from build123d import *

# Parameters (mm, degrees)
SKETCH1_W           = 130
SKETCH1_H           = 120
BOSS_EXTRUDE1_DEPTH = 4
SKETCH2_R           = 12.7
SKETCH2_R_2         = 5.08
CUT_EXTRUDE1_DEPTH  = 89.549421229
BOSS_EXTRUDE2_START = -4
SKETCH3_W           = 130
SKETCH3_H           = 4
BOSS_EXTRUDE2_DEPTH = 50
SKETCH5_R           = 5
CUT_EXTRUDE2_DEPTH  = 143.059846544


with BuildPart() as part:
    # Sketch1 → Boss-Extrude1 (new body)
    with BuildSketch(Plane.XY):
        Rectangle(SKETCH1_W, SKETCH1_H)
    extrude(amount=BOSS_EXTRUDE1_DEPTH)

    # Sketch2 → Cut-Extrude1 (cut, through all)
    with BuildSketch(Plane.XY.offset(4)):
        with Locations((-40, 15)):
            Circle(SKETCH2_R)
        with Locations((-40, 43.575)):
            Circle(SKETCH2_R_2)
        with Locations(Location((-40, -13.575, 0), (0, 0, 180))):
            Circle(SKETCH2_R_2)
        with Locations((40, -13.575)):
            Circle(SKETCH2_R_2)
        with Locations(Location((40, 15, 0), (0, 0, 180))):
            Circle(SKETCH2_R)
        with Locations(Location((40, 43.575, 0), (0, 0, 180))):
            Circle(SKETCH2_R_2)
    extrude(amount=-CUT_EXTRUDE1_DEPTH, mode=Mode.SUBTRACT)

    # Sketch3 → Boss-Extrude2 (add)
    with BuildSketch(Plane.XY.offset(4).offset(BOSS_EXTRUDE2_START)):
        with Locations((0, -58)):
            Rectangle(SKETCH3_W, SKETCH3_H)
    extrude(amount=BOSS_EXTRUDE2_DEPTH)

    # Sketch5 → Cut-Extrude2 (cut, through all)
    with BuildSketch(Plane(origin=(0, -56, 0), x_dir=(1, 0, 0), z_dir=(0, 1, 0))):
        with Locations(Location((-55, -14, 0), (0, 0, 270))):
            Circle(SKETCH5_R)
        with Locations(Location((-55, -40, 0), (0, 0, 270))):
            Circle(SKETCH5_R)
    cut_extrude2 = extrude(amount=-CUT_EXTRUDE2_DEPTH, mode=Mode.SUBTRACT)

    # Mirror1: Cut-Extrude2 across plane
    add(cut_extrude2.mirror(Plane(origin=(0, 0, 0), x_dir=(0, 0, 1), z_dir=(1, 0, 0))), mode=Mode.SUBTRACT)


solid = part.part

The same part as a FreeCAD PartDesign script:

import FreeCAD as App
import Part
import Sketcher

V = App.Vector
Q = App.Units.Quantity


def add_polygon(sketch, points):
    """Adds a closed chain of lines whose ends are joined by coincident constraints."""
    first, n = sketch.GeometryCount, len(points)
    for a, b in zip(points, points[1:] + points[:1]):
        sketch.addGeometry(Part.LineSegment(App.Vector(*a, 0), App.Vector(*b, 0)), False)
    for i in range(n):
        sketch.addConstraint(Sketcher.Constraint("Coincident", first + i, 2, first + (i + 1) % n, 1))

doc = App.newDocument("Part")
body = doc.addObject("PartDesign::Body", "Body")

sketch1 = doc.addObject("Sketcher::SketchObject", "Sketch")
body.addObject(sketch1)
sketch1.AttachmentSupport = (doc.XY_Plane, [""])
sketch1.MapMode = "FlatFace"
add_polygon(sketch1, [(-65, 60), (-65, -60), (65, -60), (65, 60)])
sketch1.addConstraint([
    Sketcher.Constraint("Vertical", 0),
    Sketcher.Constraint("Horizontal", 1),
    Sketcher.Constraint("Vertical", 2),
    Sketcher.Constraint("Horizontal", 3),
    Sketcher.Constraint("Symmetric", 0, 2, 2, 2, -1, 1),
    Sketcher.Constraint("DistanceX", 1, 1, 1, 2, Q("130 mm")),
    Sketcher.Constraint("DistanceY", 0, 2, 0, 1, Q("120 mm")),
])
pad1 = doc.addObject("PartDesign::Pad", "Pad")
body.addObject(pad1)
pad1.Profile = sketch1
pad1.Length = 4

sketch2 = doc.addObject("Sketcher::SketchObject", "Sketch001")
body.addObject(sketch2)
sketch2.AttachmentSupport = (doc.XY_Plane, [""])
sketch2.MapMode = "FlatFace"
sketch2.AttachmentOffset = App.Placement(V(0, 0, 4), App.Rotation())
sketch2.addGeometry([
    Part.Circle(V(-40, 15, 0), V(0, 0, 1), 13),
    Part.Circle(V(-40, 44, 0), V(0, 0, 1), 5),
    Part.Circle(V(-40, -14, 0), V(0, 0, 1), 5),
    Part.Circle(V(40, -14, 0), V(0, 0, 1), 5),
    Part.Circle(V(40, 15, 0), V(0, 0, 1), 13),
    Part.Circle(V(40, 44, 0), V(0, 0, 1), 5),
], False)
sketch2.addConstraint([
    Sketcher.Constraint("Equal", 1, 2),
    Sketcher.Constraint("Equal", 2, 3),
    Sketcher.Constraint("Equal", 0, 4),
    Sketcher.Constraint("Equal", 3, 5),
    Sketcher.Constraint("Symmetric", 2, 3, 3, 3, -2),
    Sketcher.Constraint("Symmetric", 0, 3, 4, 3, -2),
    Sketcher.Constraint("Symmetric", 1, 3, 5, 3, -2),
    Sketcher.Constraint("Vertical", 0, 3, 1, 3),
    Sketcher.Constraint("Vertical", 1, 3, 2, 3),
    Sketcher.Constraint("Diameter", 0, Q("25.4 mm")),
    Sketcher.Constraint("Diameter", 1, Q("10.16 mm")),
    Sketcher.Constraint("DistanceX", 0, 3, -1, 1, Q("40 mm")),
    Sketcher.Constraint("DistanceY", -1, 1, 0, 3, Q("15 mm")),
    Sketcher.Constraint("DistanceY", 2, 3, 1, 3, Q("57.15 mm")),
    Sketcher.Constraint("DistanceY", -1, 1, 1, 3, Q("43.575 mm")),
])
pocket1 = doc.addObject("PartDesign::Pocket", "Pocket")
body.addObject(pocket1)
pocket1.Profile = sketch2
pocket1.Type = "ThroughAll"

sketch3 = doc.addObject("Sketcher::SketchObject", "Sketch002")
body.addObject(sketch3)
sketch3.AttachmentSupport = (doc.XY_Plane, [""])
sketch3.MapMode = "FlatFace"
add_polygon(sketch3, [(-65, -56), (-65, -60), (65, -60), (65, -56)])
sketch3.addConstraint([
    Sketcher.Constraint("Vertical", 0),
    Sketcher.Constraint("Horizontal", 1),
    Sketcher.Constraint("Vertical", 2),
    Sketcher.Constraint("Horizontal", 3),
    Sketcher.Constraint("DistanceX", 1, 1, 1, 2, Q("130 mm")),
    Sketcher.Constraint("DistanceY", 0, 2, 0, 1, Q("4 mm")),
    Sketcher.Constraint("DistanceX", 0, 2, -1, 1, Q("65 mm")),
    Sketcher.Constraint("DistanceY", 0, 2, -1, 1, Q("60 mm")),
])
pad2 = doc.addObject("PartDesign::Pad", "Pad001")
body.addObject(pad2)
pad2.Profile = sketch3
pad2.Length = 50

sketch4 = doc.addObject("Sketcher::SketchObject", "Sketch003")
body.addObject(sketch4)
sketch4.AttachmentSupport = (doc.XZ_Plane, [""])
sketch4.MapMode = "FlatFace"
sketch4.AttachmentOffset = App.Placement(V(0, 0, 56), App.Rotation())
sketch4.addGeometry([
    Part.Circle(V(-55, 14, 0), V(0, 0, 1), 5),
    Part.Circle(V(-55, 40, 0), V(0, 0, 1), 5),
], False)
sketch4.addConstraint([
    Sketcher.Constraint("Equal", 0, 1),
    Sketcher.Constraint("Vertical", 0, 3, 1, 3),
    Sketcher.Constraint("Diameter", 0, Q("10 mm")),
    Sketcher.Constraint("DistanceX", 0, 3, -1, 1, Q("55 mm")),
    Sketcher.Constraint("DistanceY", -1, 1, 0, 3, Q("14 mm")),
    Sketcher.Constraint("DistanceY", -1, 1, 1, 3, Q("40 mm")),
])
pocket2 = doc.addObject("PartDesign::Pocket", "Pocket001")
body.addObject(pocket2)
pocket2.Profile = sketch4
pocket2.Type = "ThroughAll"
pocket2.Reversed = True
doc.recompute()

mirrored = doc.addObject("PartDesign::Mirrored", "Mirrored")
body.addObject(mirrored)
mirrored.Originals = [pocket2]
mirrored.MirrorPlane = (doc.YZ_Plane, [""])
body.Tip = mirrored

doc.recompute()
